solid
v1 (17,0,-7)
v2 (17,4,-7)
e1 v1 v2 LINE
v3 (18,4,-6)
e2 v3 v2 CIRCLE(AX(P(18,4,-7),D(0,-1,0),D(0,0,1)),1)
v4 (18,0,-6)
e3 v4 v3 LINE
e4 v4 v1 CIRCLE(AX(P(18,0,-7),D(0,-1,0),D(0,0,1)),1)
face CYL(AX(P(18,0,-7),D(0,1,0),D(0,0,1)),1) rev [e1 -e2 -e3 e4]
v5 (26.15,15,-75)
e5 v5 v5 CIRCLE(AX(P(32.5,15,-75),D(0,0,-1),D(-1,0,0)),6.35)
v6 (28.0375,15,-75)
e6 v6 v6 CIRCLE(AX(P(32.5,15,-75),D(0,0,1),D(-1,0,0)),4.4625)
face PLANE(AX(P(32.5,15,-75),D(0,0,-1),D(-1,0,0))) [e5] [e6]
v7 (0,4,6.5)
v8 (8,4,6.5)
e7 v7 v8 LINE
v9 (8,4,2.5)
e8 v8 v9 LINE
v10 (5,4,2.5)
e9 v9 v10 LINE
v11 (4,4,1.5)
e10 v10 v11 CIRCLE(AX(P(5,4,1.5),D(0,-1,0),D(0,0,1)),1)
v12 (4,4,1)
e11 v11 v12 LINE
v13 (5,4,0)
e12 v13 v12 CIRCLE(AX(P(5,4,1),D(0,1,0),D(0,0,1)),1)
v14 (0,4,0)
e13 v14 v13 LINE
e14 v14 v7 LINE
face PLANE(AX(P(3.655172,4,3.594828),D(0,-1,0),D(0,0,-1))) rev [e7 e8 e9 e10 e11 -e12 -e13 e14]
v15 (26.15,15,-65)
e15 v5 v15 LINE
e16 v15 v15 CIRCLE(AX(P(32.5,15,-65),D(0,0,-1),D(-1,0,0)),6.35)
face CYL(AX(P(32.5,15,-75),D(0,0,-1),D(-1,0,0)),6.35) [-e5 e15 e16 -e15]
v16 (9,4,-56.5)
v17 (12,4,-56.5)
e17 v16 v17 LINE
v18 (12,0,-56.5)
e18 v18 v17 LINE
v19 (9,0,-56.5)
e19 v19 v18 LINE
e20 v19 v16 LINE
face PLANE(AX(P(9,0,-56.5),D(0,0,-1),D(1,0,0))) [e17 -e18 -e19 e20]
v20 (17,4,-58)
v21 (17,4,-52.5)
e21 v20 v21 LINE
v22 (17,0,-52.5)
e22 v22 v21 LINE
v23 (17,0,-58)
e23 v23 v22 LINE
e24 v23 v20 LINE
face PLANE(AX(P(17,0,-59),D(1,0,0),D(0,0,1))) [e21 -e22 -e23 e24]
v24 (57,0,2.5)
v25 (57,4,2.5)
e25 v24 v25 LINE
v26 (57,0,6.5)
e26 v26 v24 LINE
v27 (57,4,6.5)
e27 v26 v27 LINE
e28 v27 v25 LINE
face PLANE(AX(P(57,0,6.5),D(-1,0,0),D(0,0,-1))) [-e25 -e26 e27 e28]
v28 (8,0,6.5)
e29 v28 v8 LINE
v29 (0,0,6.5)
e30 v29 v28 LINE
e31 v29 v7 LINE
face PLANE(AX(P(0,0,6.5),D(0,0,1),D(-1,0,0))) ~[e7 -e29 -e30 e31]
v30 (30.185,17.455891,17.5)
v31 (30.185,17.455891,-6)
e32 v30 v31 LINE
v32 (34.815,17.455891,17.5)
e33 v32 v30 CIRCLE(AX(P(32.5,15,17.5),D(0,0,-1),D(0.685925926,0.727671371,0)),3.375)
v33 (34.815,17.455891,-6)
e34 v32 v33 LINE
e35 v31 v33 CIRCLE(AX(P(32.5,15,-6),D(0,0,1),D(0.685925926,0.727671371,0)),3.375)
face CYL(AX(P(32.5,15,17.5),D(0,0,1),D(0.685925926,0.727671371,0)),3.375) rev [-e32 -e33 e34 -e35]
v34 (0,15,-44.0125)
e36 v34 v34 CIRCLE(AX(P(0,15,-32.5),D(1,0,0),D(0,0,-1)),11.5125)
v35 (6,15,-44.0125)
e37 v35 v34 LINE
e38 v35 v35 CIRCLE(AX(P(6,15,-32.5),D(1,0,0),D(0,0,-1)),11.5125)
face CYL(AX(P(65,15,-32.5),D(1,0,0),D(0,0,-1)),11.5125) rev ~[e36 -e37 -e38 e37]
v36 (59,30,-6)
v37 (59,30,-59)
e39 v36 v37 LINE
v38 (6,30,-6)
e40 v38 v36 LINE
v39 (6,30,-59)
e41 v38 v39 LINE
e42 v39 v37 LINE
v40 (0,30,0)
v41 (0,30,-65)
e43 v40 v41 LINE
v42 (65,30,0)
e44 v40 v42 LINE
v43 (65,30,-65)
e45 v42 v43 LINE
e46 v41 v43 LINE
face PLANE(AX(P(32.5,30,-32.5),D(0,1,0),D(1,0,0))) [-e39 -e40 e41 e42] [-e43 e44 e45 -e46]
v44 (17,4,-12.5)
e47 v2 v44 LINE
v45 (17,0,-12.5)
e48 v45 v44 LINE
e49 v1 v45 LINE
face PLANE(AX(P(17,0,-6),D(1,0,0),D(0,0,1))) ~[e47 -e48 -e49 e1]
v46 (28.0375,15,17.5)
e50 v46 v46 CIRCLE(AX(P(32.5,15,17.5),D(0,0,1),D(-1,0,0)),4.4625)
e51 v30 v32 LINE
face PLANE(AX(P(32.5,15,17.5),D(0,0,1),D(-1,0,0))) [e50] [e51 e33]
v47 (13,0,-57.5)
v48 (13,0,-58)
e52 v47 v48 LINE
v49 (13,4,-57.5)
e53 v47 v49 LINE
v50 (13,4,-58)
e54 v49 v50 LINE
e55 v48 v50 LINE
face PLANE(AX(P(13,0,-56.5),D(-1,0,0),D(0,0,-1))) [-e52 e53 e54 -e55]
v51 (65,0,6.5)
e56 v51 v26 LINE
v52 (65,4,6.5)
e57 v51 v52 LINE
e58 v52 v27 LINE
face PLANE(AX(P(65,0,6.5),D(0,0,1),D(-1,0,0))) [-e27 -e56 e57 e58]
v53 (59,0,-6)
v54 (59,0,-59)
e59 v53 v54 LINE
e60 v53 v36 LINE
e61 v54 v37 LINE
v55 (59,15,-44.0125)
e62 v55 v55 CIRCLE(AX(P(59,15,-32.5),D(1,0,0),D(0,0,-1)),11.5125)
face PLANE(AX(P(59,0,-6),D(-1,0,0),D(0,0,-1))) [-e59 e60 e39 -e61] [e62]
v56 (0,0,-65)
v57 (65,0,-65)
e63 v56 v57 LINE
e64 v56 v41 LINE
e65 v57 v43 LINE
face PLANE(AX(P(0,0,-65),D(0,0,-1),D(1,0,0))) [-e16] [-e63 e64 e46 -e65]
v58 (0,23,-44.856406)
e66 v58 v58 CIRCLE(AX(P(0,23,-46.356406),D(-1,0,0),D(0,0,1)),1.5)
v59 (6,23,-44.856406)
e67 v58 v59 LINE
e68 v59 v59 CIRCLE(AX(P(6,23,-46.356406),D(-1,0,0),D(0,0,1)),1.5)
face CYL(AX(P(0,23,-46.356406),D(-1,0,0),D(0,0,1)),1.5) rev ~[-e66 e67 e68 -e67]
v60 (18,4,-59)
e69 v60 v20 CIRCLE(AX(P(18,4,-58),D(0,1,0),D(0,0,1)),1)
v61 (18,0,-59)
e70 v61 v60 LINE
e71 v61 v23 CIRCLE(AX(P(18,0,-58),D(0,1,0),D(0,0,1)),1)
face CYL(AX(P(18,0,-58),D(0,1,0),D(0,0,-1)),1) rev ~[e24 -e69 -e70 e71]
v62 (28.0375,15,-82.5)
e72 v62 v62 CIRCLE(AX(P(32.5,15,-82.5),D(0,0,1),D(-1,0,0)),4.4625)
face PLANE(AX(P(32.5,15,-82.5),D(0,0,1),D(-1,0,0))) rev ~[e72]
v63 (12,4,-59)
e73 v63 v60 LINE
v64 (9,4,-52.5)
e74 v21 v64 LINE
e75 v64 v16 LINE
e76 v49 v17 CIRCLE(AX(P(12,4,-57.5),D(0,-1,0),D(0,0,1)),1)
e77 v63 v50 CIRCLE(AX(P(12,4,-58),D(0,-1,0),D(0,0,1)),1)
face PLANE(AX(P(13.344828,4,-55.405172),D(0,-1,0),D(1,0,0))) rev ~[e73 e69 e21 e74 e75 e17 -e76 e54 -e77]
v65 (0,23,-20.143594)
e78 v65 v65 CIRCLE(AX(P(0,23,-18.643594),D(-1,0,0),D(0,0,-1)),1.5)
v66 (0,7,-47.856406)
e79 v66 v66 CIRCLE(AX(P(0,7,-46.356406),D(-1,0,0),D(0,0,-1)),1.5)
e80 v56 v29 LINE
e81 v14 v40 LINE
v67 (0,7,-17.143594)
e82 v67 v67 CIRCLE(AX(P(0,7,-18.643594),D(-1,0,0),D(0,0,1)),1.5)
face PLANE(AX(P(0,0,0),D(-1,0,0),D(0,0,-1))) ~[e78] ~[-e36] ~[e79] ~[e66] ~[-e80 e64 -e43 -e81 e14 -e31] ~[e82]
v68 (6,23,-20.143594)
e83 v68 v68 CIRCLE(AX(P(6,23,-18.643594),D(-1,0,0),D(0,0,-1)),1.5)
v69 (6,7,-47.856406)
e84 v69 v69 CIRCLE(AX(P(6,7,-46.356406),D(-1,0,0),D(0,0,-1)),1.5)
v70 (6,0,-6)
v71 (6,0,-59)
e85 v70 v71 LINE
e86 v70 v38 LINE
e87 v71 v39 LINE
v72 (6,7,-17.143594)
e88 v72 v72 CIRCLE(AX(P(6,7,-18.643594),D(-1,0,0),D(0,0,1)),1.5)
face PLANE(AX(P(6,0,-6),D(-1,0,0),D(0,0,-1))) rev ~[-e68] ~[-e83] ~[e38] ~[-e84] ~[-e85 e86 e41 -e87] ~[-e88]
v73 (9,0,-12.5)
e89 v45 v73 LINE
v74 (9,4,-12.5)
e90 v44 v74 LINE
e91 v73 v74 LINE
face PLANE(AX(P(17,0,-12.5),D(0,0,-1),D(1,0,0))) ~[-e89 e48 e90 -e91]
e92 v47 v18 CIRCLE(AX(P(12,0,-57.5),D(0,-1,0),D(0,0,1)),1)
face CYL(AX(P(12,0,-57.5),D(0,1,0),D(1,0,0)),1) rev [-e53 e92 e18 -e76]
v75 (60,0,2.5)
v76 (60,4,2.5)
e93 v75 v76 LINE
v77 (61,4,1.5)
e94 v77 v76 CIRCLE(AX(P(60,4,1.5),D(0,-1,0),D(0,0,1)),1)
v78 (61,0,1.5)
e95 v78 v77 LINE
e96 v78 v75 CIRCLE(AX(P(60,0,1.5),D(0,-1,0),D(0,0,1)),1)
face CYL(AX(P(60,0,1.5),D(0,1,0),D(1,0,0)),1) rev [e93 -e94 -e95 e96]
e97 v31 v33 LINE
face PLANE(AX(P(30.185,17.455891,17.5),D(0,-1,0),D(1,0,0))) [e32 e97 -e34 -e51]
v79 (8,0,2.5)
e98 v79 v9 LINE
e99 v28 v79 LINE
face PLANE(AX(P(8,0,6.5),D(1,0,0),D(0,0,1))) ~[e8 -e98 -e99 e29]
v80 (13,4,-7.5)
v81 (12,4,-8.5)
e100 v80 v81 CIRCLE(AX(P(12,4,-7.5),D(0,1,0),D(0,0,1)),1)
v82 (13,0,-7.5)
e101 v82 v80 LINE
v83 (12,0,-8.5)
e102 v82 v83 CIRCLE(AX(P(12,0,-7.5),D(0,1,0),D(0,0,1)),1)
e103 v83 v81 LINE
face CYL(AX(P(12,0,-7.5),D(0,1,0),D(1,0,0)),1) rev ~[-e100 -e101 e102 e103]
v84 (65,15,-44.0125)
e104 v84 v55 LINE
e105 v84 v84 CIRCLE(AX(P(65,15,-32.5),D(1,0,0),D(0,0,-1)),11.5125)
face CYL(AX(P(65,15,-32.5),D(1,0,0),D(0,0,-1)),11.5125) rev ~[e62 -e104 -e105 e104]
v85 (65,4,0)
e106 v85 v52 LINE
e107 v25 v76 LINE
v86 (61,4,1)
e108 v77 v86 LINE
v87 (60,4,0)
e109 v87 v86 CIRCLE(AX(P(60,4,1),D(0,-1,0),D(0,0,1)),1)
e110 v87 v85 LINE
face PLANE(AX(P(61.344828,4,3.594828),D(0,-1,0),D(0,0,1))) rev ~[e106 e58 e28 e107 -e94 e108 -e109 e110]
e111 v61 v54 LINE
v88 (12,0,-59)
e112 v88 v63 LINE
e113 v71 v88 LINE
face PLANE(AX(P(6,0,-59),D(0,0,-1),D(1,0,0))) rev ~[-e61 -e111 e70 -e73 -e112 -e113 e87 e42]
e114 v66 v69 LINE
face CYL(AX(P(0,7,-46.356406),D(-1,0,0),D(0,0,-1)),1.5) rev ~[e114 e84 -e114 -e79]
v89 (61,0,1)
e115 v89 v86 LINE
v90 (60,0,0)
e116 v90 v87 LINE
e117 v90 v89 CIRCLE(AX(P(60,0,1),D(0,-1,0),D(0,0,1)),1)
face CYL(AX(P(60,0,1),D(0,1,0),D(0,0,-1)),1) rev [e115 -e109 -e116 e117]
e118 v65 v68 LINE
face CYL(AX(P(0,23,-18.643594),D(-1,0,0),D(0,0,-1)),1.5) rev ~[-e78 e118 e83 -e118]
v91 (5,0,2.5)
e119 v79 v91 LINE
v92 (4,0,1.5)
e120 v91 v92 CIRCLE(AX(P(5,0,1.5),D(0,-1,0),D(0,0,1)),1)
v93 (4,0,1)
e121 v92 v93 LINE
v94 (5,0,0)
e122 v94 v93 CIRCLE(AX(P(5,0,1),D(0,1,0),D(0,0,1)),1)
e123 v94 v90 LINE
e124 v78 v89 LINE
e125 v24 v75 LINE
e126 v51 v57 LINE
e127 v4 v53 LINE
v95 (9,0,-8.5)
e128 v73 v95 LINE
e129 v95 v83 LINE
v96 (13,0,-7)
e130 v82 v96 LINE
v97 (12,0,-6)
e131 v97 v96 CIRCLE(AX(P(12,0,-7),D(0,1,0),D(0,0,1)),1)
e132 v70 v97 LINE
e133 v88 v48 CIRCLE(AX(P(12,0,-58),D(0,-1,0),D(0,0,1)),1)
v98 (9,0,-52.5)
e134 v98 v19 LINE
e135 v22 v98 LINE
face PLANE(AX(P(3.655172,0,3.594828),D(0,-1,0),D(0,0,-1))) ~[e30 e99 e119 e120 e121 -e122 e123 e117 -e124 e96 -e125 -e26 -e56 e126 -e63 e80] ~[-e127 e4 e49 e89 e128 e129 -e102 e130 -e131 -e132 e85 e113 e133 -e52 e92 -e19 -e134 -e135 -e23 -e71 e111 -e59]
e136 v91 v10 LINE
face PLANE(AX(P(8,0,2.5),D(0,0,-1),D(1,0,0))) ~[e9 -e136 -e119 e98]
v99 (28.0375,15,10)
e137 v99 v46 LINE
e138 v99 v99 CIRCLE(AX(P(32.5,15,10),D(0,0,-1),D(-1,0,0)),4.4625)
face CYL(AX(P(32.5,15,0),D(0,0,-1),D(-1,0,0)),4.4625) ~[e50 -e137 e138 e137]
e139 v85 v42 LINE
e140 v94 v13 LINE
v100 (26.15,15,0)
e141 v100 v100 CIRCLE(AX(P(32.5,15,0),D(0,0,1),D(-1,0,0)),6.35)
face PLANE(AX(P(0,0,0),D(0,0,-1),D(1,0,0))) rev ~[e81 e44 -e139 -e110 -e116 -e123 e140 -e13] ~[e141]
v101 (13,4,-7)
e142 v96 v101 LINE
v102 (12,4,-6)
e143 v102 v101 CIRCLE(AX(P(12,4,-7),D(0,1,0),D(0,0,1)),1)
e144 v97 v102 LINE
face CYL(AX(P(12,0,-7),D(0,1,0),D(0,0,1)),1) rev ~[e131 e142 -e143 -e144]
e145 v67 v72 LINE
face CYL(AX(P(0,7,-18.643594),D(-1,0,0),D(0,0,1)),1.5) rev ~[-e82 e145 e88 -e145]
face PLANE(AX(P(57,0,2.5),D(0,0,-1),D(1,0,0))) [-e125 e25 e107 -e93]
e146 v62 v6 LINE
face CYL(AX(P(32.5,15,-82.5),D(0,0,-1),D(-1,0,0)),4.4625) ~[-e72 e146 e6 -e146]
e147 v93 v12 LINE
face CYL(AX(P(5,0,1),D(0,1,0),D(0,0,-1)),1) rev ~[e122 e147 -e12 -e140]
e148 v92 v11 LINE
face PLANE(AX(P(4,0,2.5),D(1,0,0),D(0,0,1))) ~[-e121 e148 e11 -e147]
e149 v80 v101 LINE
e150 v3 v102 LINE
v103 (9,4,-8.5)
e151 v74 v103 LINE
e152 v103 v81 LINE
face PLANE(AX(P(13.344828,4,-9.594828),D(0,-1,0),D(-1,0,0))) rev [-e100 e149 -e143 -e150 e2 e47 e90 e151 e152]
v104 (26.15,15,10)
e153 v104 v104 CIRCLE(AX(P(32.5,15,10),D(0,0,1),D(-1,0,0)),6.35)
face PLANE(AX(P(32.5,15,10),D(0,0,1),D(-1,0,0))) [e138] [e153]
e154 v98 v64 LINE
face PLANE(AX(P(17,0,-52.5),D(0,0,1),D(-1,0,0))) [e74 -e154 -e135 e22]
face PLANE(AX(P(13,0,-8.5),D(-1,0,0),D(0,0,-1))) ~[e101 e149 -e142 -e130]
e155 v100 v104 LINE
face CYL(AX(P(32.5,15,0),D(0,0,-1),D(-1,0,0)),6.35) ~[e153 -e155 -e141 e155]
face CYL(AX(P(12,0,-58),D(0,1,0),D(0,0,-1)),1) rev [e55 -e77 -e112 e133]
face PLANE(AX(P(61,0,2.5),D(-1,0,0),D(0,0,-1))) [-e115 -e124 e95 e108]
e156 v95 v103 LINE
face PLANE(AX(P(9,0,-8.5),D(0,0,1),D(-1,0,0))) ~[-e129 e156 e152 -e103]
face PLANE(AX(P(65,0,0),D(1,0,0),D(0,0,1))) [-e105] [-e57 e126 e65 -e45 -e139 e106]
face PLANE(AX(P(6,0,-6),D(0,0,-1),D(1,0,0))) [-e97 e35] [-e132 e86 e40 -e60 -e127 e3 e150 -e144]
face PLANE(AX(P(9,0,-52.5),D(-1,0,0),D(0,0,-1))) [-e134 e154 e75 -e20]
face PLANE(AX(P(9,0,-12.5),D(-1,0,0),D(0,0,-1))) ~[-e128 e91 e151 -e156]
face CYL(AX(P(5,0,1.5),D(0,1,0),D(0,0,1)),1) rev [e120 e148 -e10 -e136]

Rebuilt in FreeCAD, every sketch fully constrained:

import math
import FreeCAD as App
import Part
import Sketcher
from FreeCAD import Vector


def edges_at(feature, points):
    """Names of the edges that pass closest to the given points."""
    edges = feature.Shape.Edges
    near = lambda p: min(range(len(edges)), key=lambda i: edges[i].distToShape(Part.Vertex(*p))[0])
    return sorted({f"Edge{near(p) + 1}" for p in points})


def add_polygon(sketch, points):
    """Adds a closed chain of lines whose ends are joined by coincident constraints."""
    first, n = sketch.GeometryCount, len(points)
    for a, b in zip(points, points[1:] + points[:1]):
        sketch.addGeometry(Part.LineSegment(App.Vector(*a, 0), App.Vector(*b, 0)), False)
    for i in range(n):
        sketch.addConstraint(Sketcher.Constraint("Coincident", first + i, 2, first + (i + 1) % n, 1))

doc = App.newDocument("Part")
body = doc.addObject("PartDesign::Body", "Body")

# Sketch on XZ plane
sketch1 = body.newObject("Sketcher::SketchObject", "Sketch")
sketch1.AttachmentSupport = (doc.getObject("XZ_Plane"), [""])
sketch1.MapMode = "FlatFace"
add_polygon(sketch1, [(0, -65), (0, 0), (65, 0), (65, -65)])  # lines 0-3
add_polygon(sketch1, [(59, -6), (6, -6), (6, -59), (59, -59)])  # lines 4-7
sketch1.addConstraint([
    Sketcher.Constraint("Vertical", 0),
    Sketcher.Constraint("Horizontal", 1),
    Sketcher.Constraint("Vertical", 2),
    Sketcher.Constraint("Horizontal", 3),
    Sketcher.Constraint("Horizontal", 4),
    Sketcher.Constraint("Vertical", 5),
    Sketcher.Constraint("Horizontal", 6),
    Sketcher.Constraint("Vertical", 7),
    Sketcher.Constraint("Coincident", 0, 2, -1, 1),
    Sketcher.Constraint("Equal", 3, 0),
    Sketcher.Constraint("Equal", 6, 5),
    Sketcher.Constraint("DistanceX", 1, 1, 1, 2, 65.0),
    Sketcher.Constraint("DistanceX", 4, 2, 4, 1, 53.0),
    Sketcher.Constraint("DistanceX", -1, 1, 4, 2, 6.0),
    Sketcher.Constraint("DistanceY", 4, 2, -1, 1, 6.0),
])
pad1 = body.newObject("PartDesign::Pad", "Pad")
pad1.Profile = sketch1
pad1.Length = 30
pad1.Reversed = True

# Sketch on YZ plane
sketch2 = body.newObject("Sketcher::SketchObject", "Sketch001")
sketch2.AttachmentSupport = (doc.getObject("YZ_Plane"), [""])
sketch2.MapMode = "FlatFace"
sketch2.AttachmentOffset = App.Placement(Vector(0, 0, 65), App.Rotation())
sketch2.addGeometry(Part.Circle(Vector(15, -32, 0), Vector(0, 0, 1), 12), False)
sketch2.addConstraint([
    Sketcher.Constraint("Diameter", 0, 23.025),
    Sketcher.Constraint("DistanceX", -1, 1, 0, 3, 15.0),
    Sketcher.Constraint("DistanceY", 0, 3, -1, 1, 32.5),
])
pocket1 = body.newObject("PartDesign::Pocket", "Pocket")
pocket1.Profile = sketch2
pocket1.Type = "ThroughAll"

# Sketch on XY plane
sketch3 = body.newObject("Sketcher::SketchObject", "Sketch002")
sketch3.AttachmentSupport = (doc.getObject("XY_Plane"), [""])
sketch3.MapMode = "FlatFace"
sketch3.addGeometry(Part.Circle(Vector(32.5, 15, 0), Vector(0, 0, 1), 4.5), False)
sketch3.addConstraint([
    Sketcher.Constraint("Diameter", 0, 8.925),
    Sketcher.Constraint("DistanceY", -1, 1, 0, 3, 15.0),
    Sketcher.Constraint("DistanceX", -1, 1, 0, 3, 32.5),
])
pad2 = body.newObject("PartDesign::Pad", "Pad001")
pad2.Profile = sketch3
pad2.Length = 17.5

# Sketch on XY plane
sketch4 = body.newObject("Sketcher::SketchObject", "Sketch003")
sketch4.AttachmentSupport = (doc.getObject("XY_Plane"), [""])
sketch4.MapMode = "FlatFace"
sketch4.AttachmentOffset = App.Placement(Vector(0, 0, -82.5), App.Rotation())
sketch4.addGeometry(Part.Circle(Vector(32.5, 15, 0), Vector(0, 0, 1), 4.5), False)
sketch4.addConstraint([
    Sketcher.Constraint("Diameter", 0, 8.925),
    Sketcher.Constraint("DistanceY", -1, 1, 0, 3, 15.0),
    Sketcher.Constraint("DistanceX", -1, 1, 0, 3, 32.5),
])
pad3 = body.newObject("PartDesign::Pad", "Pad002")
pad3.Profile = sketch4
pad3.Length = 17.5

# Sketch on XY plane
sketch5 = body.newObject("Sketcher::SketchObject", "Sketch004")
sketch5.AttachmentSupport = (doc.getObject("XY_Plane"), [""])
sketch5.MapMode = "FlatFace"
sketch5.AttachmentOffset = App.Placement(Vector(0, 0, 17.5), App.Rotation())
sketch5.addGeometry([
    Part.LineSegment(Vector(34.8, 17.5, 0), Vector(30.2, 17.5, 0)),
    Part.ArcOfCircle(Part.Circle(Vector(32.5, 15, 0), Vector(0, 0, 1), 3.4), math.radians(133), math.radians(407)),
], False)
sketch5.addConstraint([
    Sketcher.Constraint("Coincident", 0, 1, 1, 2),
    Sketcher.Constraint("Coincident", 1, 1, 0, 2),
    Sketcher.Constraint("Horizontal", 0),
    Sketcher.Constraint("DistanceY", -1, 1, 1, 3, 15.0),
    Sketcher.Constraint("Radius", 1, 3.375),
    Sketcher.Constraint("DistanceX", 0, 2, 0, 1, 4.63),
    Sketcher.Constraint("DistanceX", -1, 1, 1, 3, 32.5),
])
pocket2 = body.newObject("PartDesign::Pocket", "Pocket001")
pocket2.Profile = sketch5
pocket2.Type = "UpToFirst"

# Sketch on XY plane
sketch6 = body.newObject("Sketcher::SketchObject", "Sketch005")
sketch6.AttachmentSupport = (doc.getObject("XY_Plane"), [""])
sketch6.MapMode = "FlatFace"
sketch6.addGeometry([
    Part.Circle(Vector(32.5, 15, 0), Vector(0, 0, 1), 6.3),
    Part.Circle(Vector(32.5, 15, 0), Vector(0, 0, 1), 4.5),
], False)
sketch6.addConstraint([
    Sketcher.Constraint("Coincident", 1, 3, 0, 3),
    Sketcher.Constraint("Diameter", 0, 12.7),
    Sketcher.Constraint("Diameter", 1, 8.925),
    Sketcher.Constraint("DistanceY", -1, 1, 0, 3, 15.0),
    Sketcher.Constraint("DistanceX", -1, 1, 0, 3, 32.5),
])
pad4 = body.newObject("PartDesign::Pad", "Pad003")
pad4.Profile = sketch6
pad4.Length = 10

# Sketch on XY plane
sketch7 = body.newObject("Sketcher::SketchObject", "Sketch006")
sketch7.AttachmentSupport = (doc.getObject("XY_Plane"), [""])
sketch7.MapMode = "FlatFace"
sketch7.AttachmentOffset = App.Placement(Vector(0, 0, -75), App.Rotation())
sketch7.addGeometry([
    Part.Circle(Vector(32.5, 15, 0), Vector(0, 0, 1), 6.3),
    Part.Circle(Vector(32.5, 15, 0), Vector(0, 0, 1), 4.5),
], False)
sketch7.addConstraint([
    Sketcher.Constraint("Coincident", 1, 3, 0, 3),
    Sketcher.Constraint("Diameter", 0, 12.7),
    Sketcher.Constraint("Diameter", 1, 8.925),
    Sketcher.Constraint("DistanceY", -1, 1, 0, 3, 15.0),
    Sketcher.Constraint("DistanceX", -1, 1, 0, 3, 32.5),
])
pad5 = body.newObject("PartDesign::Pad", "Pad004")
pad5.Profile = sketch7
pad5.Length = 10

# Sketch on YZ plane
sketch8 = body.newObject("Sketcher::SketchObject", "Sketch007")
sketch8.AttachmentSupport = (doc.getObject("YZ_Plane"), [""])
sketch8.MapMode = "FlatFace"
sketch8.addGeometry([
    Part.Circle(Vector(23, -46.4, 0), Vector(0, 0, 1), 1.5),
    Part.Circle(Vector(7, -46.4, 0), Vector(0, 0, 1), 1.5),
    Part.Circle(Vector(23, -18.6, 0), Vector(0, 0, 1), 1.5),
    Part.Circle(Vector(7, -18.6, 0), Vector(0, 0, 1), 1.5),
], False)
sketch8.addConstraint([
    Sketcher.Constraint("Equal", 0, 1),
    Sketcher.Constraint("Equal", 1, 2),
    Sketcher.Constraint("Equal", 2, 3),
    Sketcher.Constraint("Horizontal", 0, 3, 1, 3),
    Sketcher.Constraint("Horizontal", 2, 3, 3, 3),
    Sketcher.Constraint("Vertical", 0, 3, 2, 3),
    Sketcher.Constraint("Vertical", 1, 3, 3, 3),
    Sketcher.Constraint("Diameter", 0, 3.0),
    Sketcher.Constraint("DistanceX", -1, 1, 0, 3, 23.0),
    Sketcher.Constraint("DistanceX", -1, 1, 1, 3, 7.0),
    Sketcher.Constraint("DistanceY", 0, 3, -1, 1, 46.356406),
    Sketcher.Constraint("DistanceY", 2, 3, -1, 1, 18.643594),
])
pocket3 = body.newObject("PartDesign::Pocket", "Pocket002")
pocket3.Profile = sketch8
pocket3.Length = 10
pocket3.Reversed = True

# Sketch on XZ plane
sketch9 = body.newObject("Sketcher::SketchObject", "Sketch008")
sketch9.AttachmentSupport = (doc.getObject("XZ_Plane"), [""])
sketch9.MapMode = "FlatFace"
add_polygon(sketch9, [(65, 0), (65, 6.5), (57, 6.5), (57, 2.5), (61, 2.5), (61, 0)])  # lines 0-5
sketch9.addConstraint([
    Sketcher.Constraint("Vertical", 0),
    Sketcher.Constraint("Horizontal", 1),
    Sketcher.Constraint("Vertical", 2),
    Sketcher.Constraint("Horizontal", 3),
    Sketcher.Constraint("Vertical", 4),
    Sketcher.Constraint("Horizontal", 5),
    Sketcher.Constraint("PointOnObject", 4, 2, -1),
    Sketcher.Constraint("Equal", 3, 5),
    Sketcher.Constraint("Equal", 5, 2),
    Sketcher.Constraint("DistanceX", 1, 2, 1, 1, 8.0),
    Sketcher.Constraint("DistanceY", 0, 1, 0, 2, 6.5),
    Sketcher.Constraint("DistanceX", -1, 1, 0, 2, 65.0),
])
pad6 = body.newObject("PartDesign::Pad", "Pad005")
pad6.Profile = sketch9
pad6.Length = 4
pad6.Reversed = True

# Sketch on XZ plane
sketch10 = body.newObject("Sketcher::SketchObject", "Sketch009")
sketch10.AttachmentSupport = (doc.getObject("XZ_Plane"), [""])
sketch10.MapMode = "FlatFace"
add_polygon(sketch10, [(17, -59), (17, -52.5), (9, -52.5), (9, -56.5), (13, -56.5), (13, -59)])  # lines 0-5
sketch10.addConstraint([
    Sketcher.Constraint("Vertical", 0),
    Sketcher.Constraint("Horizontal", 1),
    Sketcher.Constraint("Vertical", 2),
    Sketcher.Constraint("Horizontal", 3),
    Sketcher.Constraint("Vertical", 4),
    Sketcher.Constraint("Horizontal", 5),
    Sketcher.Constraint("Equal", 3, 5),
    Sketcher.Constraint("Equal", 5, 2),
    Sketcher.Constraint("DistanceX", 1, 2, 1, 1, 8.0),
    Sketcher.Constraint("DistanceY", 0, 1, 0, 2, 6.5),
    Sketcher.Constraint("DistanceX", -1, 1, 0, 2, 17.0),
    Sketcher.Constraint("DistanceY", 4, 2, -1, 1, 59.0),
])
pad7 = body.newObject("PartDesign::Pad", "Pad006")
pad7.Profile = sketch10
pad7.Length = 4
pad7.Reversed = True
doc.recompute()

datumplane = body.newObject("PartDesign::Plane", "DatumPlane")
datumplane.AttachmentSupport = (doc.getObject("YZ_Plane"), [""])
datumplane.MapMode = "FlatFace"
datumplane.AttachmentOffset = App.Placement(Vector(0, 0, 32.5), App.Rotation())
mirrored = body.newObject("PartDesign::Mirrored", "Mirrored")
mirrored.Originals = [pad6]
mirrored.MirrorPlane = (datumplane, [""])
body.Tip = mirrored
doc.recompute()

datumplane2 = body.newObject("PartDesign::Plane", "DatumPlane001")
datumplane2.AttachmentSupport = (doc.getObject("XY_Plane"), [""])
datumplane2.MapMode = "FlatFace"
datumplane2.AttachmentOffset = App.Placement(Vector(0, 0, -32.5), App.Rotation())
mirrored2 = body.newObject("PartDesign::Mirrored", "Mirrored001")
mirrored2.Originals = [pad7]
mirrored2.MirrorPlane = (datumplane2, [""])
body.Tip = mirrored2
doc.recompute()

fillet = body.newObject("PartDesign::Fillet", "Fillet")
fillet.Base = (mirrored2, edges_at(mirrored2, [
    (61, 2, 2.5),
    (61, 2, 0),
    (17, 2, -59),
    (13, 2, -59),
    (13, 2, -56.5),
    (4, 2, 2.5),
    (4, 2, 0),
    (13, 2, -6),
    (17, 2, -6),
    (13, 2, -8.5),
]))
fillet.Radius = 1

doc.recompute()
